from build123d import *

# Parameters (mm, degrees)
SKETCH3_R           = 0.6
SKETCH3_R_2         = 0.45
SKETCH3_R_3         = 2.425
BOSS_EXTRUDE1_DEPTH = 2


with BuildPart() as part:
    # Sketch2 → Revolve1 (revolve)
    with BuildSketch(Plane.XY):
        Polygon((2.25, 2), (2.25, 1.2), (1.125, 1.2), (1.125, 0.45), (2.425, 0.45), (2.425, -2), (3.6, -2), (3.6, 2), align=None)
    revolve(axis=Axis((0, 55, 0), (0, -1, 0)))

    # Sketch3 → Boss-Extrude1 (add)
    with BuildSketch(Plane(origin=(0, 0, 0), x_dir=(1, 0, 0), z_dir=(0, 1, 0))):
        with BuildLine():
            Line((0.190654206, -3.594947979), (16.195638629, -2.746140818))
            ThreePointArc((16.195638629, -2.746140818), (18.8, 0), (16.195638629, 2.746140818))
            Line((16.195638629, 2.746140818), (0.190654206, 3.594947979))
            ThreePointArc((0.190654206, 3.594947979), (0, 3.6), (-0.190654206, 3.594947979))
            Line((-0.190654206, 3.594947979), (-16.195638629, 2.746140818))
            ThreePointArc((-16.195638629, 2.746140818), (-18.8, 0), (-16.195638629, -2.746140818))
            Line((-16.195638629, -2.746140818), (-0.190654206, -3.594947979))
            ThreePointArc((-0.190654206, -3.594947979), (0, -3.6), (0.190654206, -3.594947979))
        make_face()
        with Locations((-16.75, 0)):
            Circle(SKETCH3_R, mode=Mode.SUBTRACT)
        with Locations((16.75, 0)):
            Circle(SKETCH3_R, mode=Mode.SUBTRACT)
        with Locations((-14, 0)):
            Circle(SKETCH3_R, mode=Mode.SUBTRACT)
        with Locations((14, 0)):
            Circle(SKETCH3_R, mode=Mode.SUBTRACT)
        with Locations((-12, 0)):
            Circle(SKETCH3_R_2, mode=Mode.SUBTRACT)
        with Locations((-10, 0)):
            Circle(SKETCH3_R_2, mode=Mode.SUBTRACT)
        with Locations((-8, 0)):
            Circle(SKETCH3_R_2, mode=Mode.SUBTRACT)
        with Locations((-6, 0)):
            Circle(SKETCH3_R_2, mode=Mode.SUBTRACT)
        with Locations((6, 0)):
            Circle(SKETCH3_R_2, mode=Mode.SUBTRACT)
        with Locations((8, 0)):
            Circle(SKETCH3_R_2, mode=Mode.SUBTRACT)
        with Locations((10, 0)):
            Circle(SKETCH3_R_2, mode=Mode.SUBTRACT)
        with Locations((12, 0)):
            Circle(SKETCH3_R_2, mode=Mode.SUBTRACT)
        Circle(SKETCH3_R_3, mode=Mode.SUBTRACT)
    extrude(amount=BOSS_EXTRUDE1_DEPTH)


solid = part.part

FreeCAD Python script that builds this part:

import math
import FreeCAD as App
import Part
import Sketcher
Q = App.Units.Quantity


def add_polygon(sketch, points):
    """Adds a closed chain of lines whose ends are joined by coincident constraints."""
    first, n = sketch.GeometryCount, len(points)
    for a, b in zip(points, points[1:] + points[:1]):
        sketch.addGeometry(Part.LineSegment(App.Vector(*a, 0), App.Vector(*b, 0)), False)
    for i in range(n):
        sketch.addConstraint(Sketcher.Constraint("Coincident", first + i, 2, first + (i + 1) % n, 1))

doc = App.newDocument("Part")
body = doc.addObject("PartDesign::Body", "Body")

# Sketch on XY plane
sketch1 = doc.addObject("Sketcher::SketchObject", "Sketch")
body.addObject(sketch1)
sketch1.AttachmentSupport = (doc.XY_Plane, [""])
sketch1.MapMode = "FlatFace"
add_polygon(sketch1, [(2.2, 2), (2.2, 1.2), (1.1, 1.2), (1.1, 0.5), (2.4, 0.5), (2.4, -2), (3.6, -2), (3.6, 2)])  # lines 0-7
sketch1.addConstraint([
    Sketcher.Constraint("Vertical", 0),
    Sketcher.Constraint("Horizontal", 1),
    Sketcher.Constraint("Vertical", 2),
    Sketcher.Constraint("Horizontal", 3),
    Sketcher.Constraint("Vertical", 4),
    Sketcher.Constraint("Horizontal", 5),
    Sketcher.Constraint("Vertical", 6),
    Sketcher.Constraint("Horizontal", 7),
    Sketcher.Constraint("DistanceY", 6, 1, 6, 2, Q("4 mm")),
    Sketcher.Constraint("DistanceX", 3, 1, 3, 2, Q("1.3 mm")),
    Sketcher.Constraint("DistanceY", 0, 2, 0, 1, Q("0.8 mm")),
    Sketcher.Constraint("DistanceY", 4, 2, -1, 1, Q("2 mm")),
    Sketcher.Constraint("DistanceX", 7, 2, 7, 1, Q("1.35 mm")),
    Sketcher.Constraint("DistanceY", 2, 2, 2, 1, Q("0.75 mm")),
    Sketcher.Constraint("DistanceX", -1, 1, 5, 2, Q("3.6 mm")),
    Sketcher.Constraint("DistanceX", 1, 2, 1, 1, Q("1.125 mm")),
])
revolution = doc.addObject("PartDesign::Revolution", "Revolution")
body.addObject(revolution)
revolution.Profile = sketch1
revolution.ReferenceAxis = (sketch1, ["V_Axis"])
revolution.Angle = 360

# Sketch on XZ plane
sketch2 = doc.addObject("Sketcher::SketchObject", "Sketch001")
body.addObject(sketch2)
sketch2.AttachmentSupport = (doc.XZ_Plane, [""])
sketch2.MapMode = "FlatFace"
sketch2.addGeometry([
    Part.LineSegment(App.Vector(0.19, 3.59, 0), App.Vector(16.2, 2.75, 0)),  # 0
    Part.ArcOfCircle(Part.Circle(App.Vector(16.05, 0, 0), App.Vector(0, 0, 1), 2.75), math.radians(-87), math.radians(87)),  # 1
    Part.LineSegment(App.Vector(16.2, -2.75, 0), App.Vector(0.19, -3.59, 0)),  # 2
    Part.ArcOfCircle(Part.Circle(App.Vector(0, 0, 0), App.Vector(0, 0, 1), 3.6), math.radians(-93.04), math.radians(-86.96)),  # 3
    Part.LineSegment(App.Vector(-0.19, -3.59, 0), App.Vector(-16.2, -2.75, 0)),  # 4
    Part.ArcOfCircle(Part.Circle(App.Vector(-16.05, 0, 0), App.Vector(0, 0, 1), 2.75), math.radians(93), math.radians(267)),  # 5
    Part.LineSegment(App.Vector(-16.2, 2.75, 0), App.Vector(-0.19, 3.59, 0)),  # 6
    Part.ArcOfCircle(Part.Circle(App.Vector(0, 0, 0), App.Vector(0, 0, 1), 3.6), math.radians(86.96), math.radians(93.04)),  # 7
    Part.Circle(App.Vector(-16.75, 0, 0), App.Vector(0, 0, 1), 0.6),  # 8
    Part.Circle(App.Vector(-14, 0, 0), App.Vector(0, 0, 1), 0.6),  # 9
    Part.Circle(App.Vector(-12, 0, 0), App.Vector(0, 0, 1), 0.45),  # 10
    Part.Circle(App.Vector(-10, 0, 0), App.Vector(0, 0, 1), 0.45),  # 11
    Part.Circle(App.Vector(-8, 0, 0), App.Vector(0, 0, 1), 0.45),  # 12
    Part.Circle(App.Vector(-6, 0, 0), App.Vector(0, 0, 1), 0.45),  # 13
    Part.Circle(App.Vector(0, 0, 0), App.Vector(0, 0, 1), 2.42),  # 14
    Part.Circle(App.Vector(6, 0, 0), App.Vector(0, 0, 1), 0.45),  # 15
    Part.Circle(App.Vector(8, 0, 0), App.Vector(0, 0, 1), 0.45),  # 16
    Part.Circle(App.Vector(10, 0, 0), App.Vector(0, 0, 1), 0.45),  # 17
    Part.Circle(App.Vector(12, 0, 0), App.Vector(0, 0, 1), 0.45),  # 18
    Part.Circle(App.Vector(14, 0, 0), App.Vector(0, 0, 1), 0.6),  # 19
    Part.Circle(App.Vector(16.75, 0, 0), App.Vector(0, 0, 1), 0.6),  # 20
], False)
sketch2.addConstraint([
    Sketcher.Constraint("Tangent", 0, 2, 1, 2),
    Sketcher.Constraint("Tangent", 1, 1, 2, 1),
    Sketcher.Constraint("Tangent", 2, 2, 3, 2),
    Sketcher.Constraint("Tangent", 3, 1, 4, 1),
    Sketcher.Constraint("Tangent", 4, 2, 5, 2),
    Sketcher.Constraint("Tangent", 5, 1, 6, 1),
    Sketcher.Constraint("Tangent", 6, 2, 7, 2),
    Sketcher.Constraint("Tangent", 7, 1, 0, 1),
    Sketcher.Constraint("Coincident", 3, 3, -1, 1),
    Sketcher.Constraint("Coincident", 7, 3, -1, 1),
    Sketcher.Constraint("Coincident", 14, 3, -1, 1),
    Sketcher.Constraint("Equal", 1, 5),
    Sketcher.Constraint("Equal", 3, 7),
    Sketcher.Constraint("Equal", 8, 9),
    Sketcher.Constraint("Equal", 10, 11),
    Sketcher.Constraint("Equal", 11, 12),
    Sketcher.Constraint("Equal", 12, 13),
    Sketcher.Constraint("Equal", 13, 15),
    Sketcher.Constraint("Equal", 15, 16),
    Sketcher.Constraint("Equal", 16, 17),
    Sketcher.Constraint("Equal", 17, 18),
    Sketcher.Constraint("Equal", 9, 19),
    Sketcher.Constraint("Equal", 19, 20),
    Sketcher.Constraint("Symmetric", 1, 3, 5, 3, -1, 1),
    Sketcher.Constraint("Symmetric", 13, 3, 15, 3, -1, 1),
    Sketcher.Constraint("Symmetric", 12, 3, 16, 3, -1, 1),
    Sketcher.Constraint("Symmetric", 11, 3, 17, 3, -1, 1),
    Sketcher.Constraint("Symmetric", 10, 3, 18, 3, -1, 1),
    Sketcher.Constraint("Symmetric", 9, 3, 19, 3, -1, 1),
    Sketcher.Constraint("Symmetric", 8, 3, 20, 3, -1, 1),
    Sketcher.Constraint("PointOnObject", 1, 3, -1),
    Sketcher.Constraint("PointOnObject", 8, 3, -1),
    Sketcher.Constraint("PointOnObject", 9, 3, -1),
    Sketcher.Constraint("PointOnObject", 10, 3, -1),
    Sketcher.Constraint("PointOnObject", 11, 3, -1),
    Sketcher.Constraint("PointOnObject", 12, 3, -1),
    Sketcher.Constraint("PointOnObject", 13, 3, -1),
    Sketcher.Constraint("Diameter", 8, Q("1.2 mm")),
    Sketcher.Constraint("Diameter", 10, Q("0.9 mm")),
    Sketcher.Constraint("Radius", 3, Q("3.6 mm")),
    Sketcher.Constraint("Diameter", 14, Q("4.85 mm")),
    Sketcher.Constraint("Radius", 1, Q("2.75 mm")),
    Sketcher.Constraint("DistanceX", 9, 3, -1, 1, Q("14 mm")),
    Sketcher.Constraint("DistanceX", 10, 3, -1, 1, Q("12 mm")),
    Sketcher.Constraint("DistanceX", 11, 3, -1, 1, Q("10 mm")),
    Sketcher.Constraint("DistanceX", 12, 3, -1, 1, Q("8 mm")),
    Sketcher.Constraint("DistanceX", 13, 3, -1, 1, Q("6 mm")),
    Sketcher.Constraint("DistanceX", 5, 3, 1, 3, Q("32.1 mm")),
    Sketcher.Constraint("DistanceX", 8, 3, 5, 3, Q("0.7 mm")),
])
pad1 = doc.addObject("PartDesign::Pad", "Pad")
body.addObject(pad1)
pad1.Profile = sketch2
pad1.Length = 2
pad1.Reversed = True

doc.recompute()
